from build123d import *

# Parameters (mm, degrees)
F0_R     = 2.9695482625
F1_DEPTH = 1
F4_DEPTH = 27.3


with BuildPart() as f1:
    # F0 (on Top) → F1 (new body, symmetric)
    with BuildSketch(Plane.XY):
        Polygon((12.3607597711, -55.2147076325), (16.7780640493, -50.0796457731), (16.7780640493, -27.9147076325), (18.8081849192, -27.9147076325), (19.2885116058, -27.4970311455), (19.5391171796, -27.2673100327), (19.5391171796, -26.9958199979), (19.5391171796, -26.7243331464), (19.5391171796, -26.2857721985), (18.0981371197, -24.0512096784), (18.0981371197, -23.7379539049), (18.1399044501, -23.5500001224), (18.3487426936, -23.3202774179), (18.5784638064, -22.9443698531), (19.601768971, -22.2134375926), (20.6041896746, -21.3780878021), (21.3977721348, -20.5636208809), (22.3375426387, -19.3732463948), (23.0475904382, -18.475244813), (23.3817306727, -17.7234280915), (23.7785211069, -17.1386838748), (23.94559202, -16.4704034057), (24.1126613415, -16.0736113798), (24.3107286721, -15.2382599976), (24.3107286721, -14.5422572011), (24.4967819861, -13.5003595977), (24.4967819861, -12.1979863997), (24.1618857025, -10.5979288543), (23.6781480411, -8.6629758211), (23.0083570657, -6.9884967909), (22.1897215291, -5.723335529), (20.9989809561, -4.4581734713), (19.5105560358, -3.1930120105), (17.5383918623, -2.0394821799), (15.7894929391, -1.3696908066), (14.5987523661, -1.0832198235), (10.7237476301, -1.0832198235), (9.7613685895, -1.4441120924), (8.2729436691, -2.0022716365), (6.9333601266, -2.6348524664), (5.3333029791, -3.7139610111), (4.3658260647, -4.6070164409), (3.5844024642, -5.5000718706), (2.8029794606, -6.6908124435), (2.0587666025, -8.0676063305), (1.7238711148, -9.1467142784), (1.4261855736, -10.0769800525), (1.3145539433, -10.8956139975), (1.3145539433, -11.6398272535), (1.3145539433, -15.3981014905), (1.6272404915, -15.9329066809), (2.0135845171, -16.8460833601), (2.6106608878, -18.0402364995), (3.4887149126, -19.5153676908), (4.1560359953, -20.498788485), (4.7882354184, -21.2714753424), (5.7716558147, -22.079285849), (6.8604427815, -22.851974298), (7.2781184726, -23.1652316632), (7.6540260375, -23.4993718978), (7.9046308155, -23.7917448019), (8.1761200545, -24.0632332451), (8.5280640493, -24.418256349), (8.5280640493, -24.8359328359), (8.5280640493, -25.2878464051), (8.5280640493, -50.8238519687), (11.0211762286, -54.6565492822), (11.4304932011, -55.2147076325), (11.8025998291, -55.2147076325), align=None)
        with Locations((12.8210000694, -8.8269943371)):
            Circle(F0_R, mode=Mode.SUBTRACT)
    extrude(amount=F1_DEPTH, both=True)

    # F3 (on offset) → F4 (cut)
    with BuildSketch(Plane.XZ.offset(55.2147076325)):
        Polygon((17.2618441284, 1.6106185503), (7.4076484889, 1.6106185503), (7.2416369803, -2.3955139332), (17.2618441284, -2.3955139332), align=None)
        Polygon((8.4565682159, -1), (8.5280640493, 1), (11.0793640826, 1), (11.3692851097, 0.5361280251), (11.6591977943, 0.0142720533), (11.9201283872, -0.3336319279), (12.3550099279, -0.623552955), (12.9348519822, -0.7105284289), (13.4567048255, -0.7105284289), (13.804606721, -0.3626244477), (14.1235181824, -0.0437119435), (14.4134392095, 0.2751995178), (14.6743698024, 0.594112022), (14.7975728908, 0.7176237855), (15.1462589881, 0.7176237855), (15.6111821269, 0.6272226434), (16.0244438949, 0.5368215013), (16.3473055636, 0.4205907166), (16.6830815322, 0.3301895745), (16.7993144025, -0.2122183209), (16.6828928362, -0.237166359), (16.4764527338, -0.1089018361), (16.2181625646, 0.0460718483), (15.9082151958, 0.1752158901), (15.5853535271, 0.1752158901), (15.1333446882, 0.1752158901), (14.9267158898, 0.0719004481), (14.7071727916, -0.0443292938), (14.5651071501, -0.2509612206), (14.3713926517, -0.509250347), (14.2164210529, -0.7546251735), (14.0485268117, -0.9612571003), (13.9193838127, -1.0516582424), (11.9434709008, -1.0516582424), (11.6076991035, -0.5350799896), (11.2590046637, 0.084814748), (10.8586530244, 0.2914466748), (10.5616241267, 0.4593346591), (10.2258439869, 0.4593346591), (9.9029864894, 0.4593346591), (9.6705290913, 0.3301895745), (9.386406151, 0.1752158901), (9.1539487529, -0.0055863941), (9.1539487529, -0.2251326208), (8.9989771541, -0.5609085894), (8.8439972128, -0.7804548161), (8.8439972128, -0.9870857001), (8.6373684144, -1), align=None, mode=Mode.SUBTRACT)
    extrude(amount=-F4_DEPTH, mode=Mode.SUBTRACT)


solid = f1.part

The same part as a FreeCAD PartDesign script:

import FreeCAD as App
import Part
import Sketcher


def add_polygon(sketch, points):
    """Adds a closed chain of lines whose ends are joined by coincident constraints."""
    first, n = sketch.GeometryCount, len(points)
    for a, b in zip(points, points[1:] + points[:1]):
        sketch.addGeometry(Part.LineSegment(App.Vector(*a, 0), App.Vector(*b, 0)), False)
    for i in range(n):
        sketch.addConstraint(Sketcher.Constraint("Coincident", first + i, 2, first + (i + 1) % n, 1))

doc = App.newDocument("Part")
body = doc.addObject("PartDesign::Body", "Body")

sketch1 = doc.addObject("Sketcher::SketchObject", "Sketch")
body.addObject(sketch1)
sketch1.AttachmentSupport = (doc.XY_Plane, [""])
sketch1.MapMode = "FlatFace"
add_polygon(sketch1, [(12.36, -55.21), (16.78, -50.08), (16.78, -27.91), (18.81, -27.91), (19.29, -27.5), (19.54, -27.27), (19.54, -26.29), (18.1, -24.05), (18.1, -23.74), (18.14, -23.55), (18.35, -23.32), (18.58, -22.94), (19.6, -22.21), (20.6, -21.38), (21.4, -20.56), (22.34, -19.37), (23.05, -18.48), (23.38, -17.72), (23.78, -17.14), (23.95, -16.47), (24.11, -16.07), (24.31, -15.24), (24.31, -14.54), (24.5, -13.5), (24.5, -12.2), (24.16, -10.6), (23.68, -8.66), (23.01, -6.99), (22.19, -5.72), (21, -4.46), (19.51, -3.19), (17.54, -2.04), (15.79, -1.37), (14.6, -1.08), (10.72, -1.08), (9.76, -1.44), (8.27, -2), (6.93, -2.63), (5.33, -3.71), (4.37, -4.61), (3.58, -5.5), (2.8, -6.69), (2.06, -8.07), (1.72, -9.15), (1.43, -10.08), (1.31, -10.9), (1.31, -15.4), (1.63, -15.93), (2.01, -16.85), (2.61, -18.04), (3.49, -19.52), (4.16, -20.5), (4.79, -21.27), (5.77, -22.08), (6.86, -22.85), (7.28, -23.17), (7.65, -23.5), (7.9, -23.79), (8.18, -24.06), (8.53, -24.42), (8.53, -50.82), (11.02, -54.66), (11.43, -55.21)])
sketch1.addGeometry(Part.Circle(App.Vector(12.82, -8.83, 0), App.Vector(0, 0, 1), 2.97), False)
sketch1.addConstraint(Sketcher.Constraint("Vertical", 1))
sketch1.addConstraint(Sketcher.Constraint("Horizontal", 2))
sketch1.addConstraint(Sketcher.Constraint("Vertical", 5))
sketch1.addConstraint(Sketcher.Constraint("Vertical", 7))
sketch1.addConstraint(Sketcher.Constraint("Vertical", 21))
sketch1.addConstraint(Sketcher.Constraint("Vertical", 23))
sketch1.addConstraint(Sketcher.Constraint("Horizontal", 33))
sketch1.addConstraint(Sketcher.Constraint("Vertical", 45))
sketch1.addConstraint(Sketcher.Constraint("Vertical", 59))
sketch1.addConstraint(Sketcher.Constraint("Horizontal", 62))
sketch1.addConstraint(Sketcher.Constraint("Parallel", 34, 35))
sketch1.addConstraint(Sketcher.Constraint("Equal", 48, 53))
sketch1.addConstraint(Sketcher.Constraint("DistanceY", 8, 2, -1, 1, 23.55))
sketch1.addConstraint(Sketcher.Constraint("Diameter", 63, 5.939097))
sketch1.addConstraint(Sketcher.Constraint("DistanceX", -1, 1, 63, 3, 12.821))
sketch1.addConstraint(Sketcher.Constraint("DistanceX", 2, 1, 2, 2, 2.030121))
sketch1.addConstraint(Sketcher.Constraint("DistanceY", 1, 1, 1, 2, 22.164938))
sketch1.addConstraint(Sketcher.Constraint("DistanceY", 45, 2, -1, 1, 15.398101))
sketch1.addConstraint(Sketcher.Constraint("Distance", 6, 2.658889))
sketch1.addConstraint(Sketcher.Constraint("Distance", 8, 0.192539))
sketch1.addConstraint(Sketcher.Constraint("Distance", 9, 0.310461))
sketch1.addConstraint(Sketcher.Constraint("Distance", 12, 1.304859))
sketch1.addConstraint(Sketcher.Constraint("Distance", 13, 1.137159))
sketch1.addConstraint(Sketcher.Constraint("Distance", 17, 0.70666))
sketch1.addConstraint(Sketcher.Constraint("Distance", 19, 0.43053))
sketch1.addConstraint(Sketcher.Constraint("Distance", 20, 0.858512))
sketch1.addConstraint(Sketcher.Constraint("Distance", 22, 1.058379))
sketch1.addConstraint(Sketcher.Constraint("Distance", 24, 1.634729))
sketch1.addConstraint(Sketcher.Constraint("Distance", 26, 1.803469))
sketch1.addConstraint(Sketcher.Constraint("Distance", 29, 1.953469))
sketch1.addConstraint(Sketcher.Constraint("Distance", 31, 1.87277))
sketch1.addConstraint(Sketcher.Constraint("Distance", 34, 1.027821))
sketch1.addConstraint(Sketcher.Constraint("Distance", 35, 1.589639))
sketch1.addConstraint(Sketcher.Constraint("Distance", 40, 1.424249))
sketch1.addConstraint(Sketcher.Constraint("Distance", 41, 1.56506))
sketch1.addConstraint(Sketcher.Constraint("Distance", 42, 1.12988))
sketch1.addConstraint(Sketcher.Constraint("Distance", 44, 0.82621))
sketch1.addConstraint(Sketcher.Constraint("Distance", 47, 0.991541))
sketch1.addConstraint(Sketcher.Constraint("Distance", 49, 1.71668))
sketch1.addConstraint(Sketcher.Constraint("Distance", 50, 1.188459))
sketch1.addConstraint(Sketcher.Constraint("Distance", 51, 0.998359))
sketch1.addConstraint(Sketcher.Constraint("DistanceX", 33, 2, 33, 1, 3.875005))
sketch1.addConstraint(Sketcher.Constraint("DistanceX", 62, 1, 62, 2, 0.930267))
sketch1.addConstraint(Sketcher.Constraint("DistanceY", 5, 1, 5, 2, 0.981538))
sketch1.addConstraint(Sketcher.Constraint("DistanceY", 7, 1, 7, 2, 0.313256))
sketch1.addConstraint(Sketcher.Constraint("DistanceY", 21, 1, 21, 2, 0.696003))
sketch1.addConstraint(Sketcher.Constraint("DistanceY", 23, 1, 23, 2, 1.302373))
sketch1.addConstraint(Sketcher.Constraint("DistanceY", 45, 2, 45, 1, 4.502487))
sketch1.addConstraint(Sketcher.Constraint("DistanceY", 59, 2, 59, 1, 26.405596))
sketch1.addConstraint(Sketcher.Constraint("DistanceX", -1, 1, 3, 2, 19.288512))
sketch1.addConstraint(Sketcher.Constraint("DistanceY", 3, 2, -1, 1, 27.497031))
sketch1.addConstraint(Sketcher.Constraint("DistanceY", 4, 2, -1, 1, 27.26731))
sketch1.addConstraint(Sketcher.Constraint("DistanceY", 6, 2, -1, 1, 24.05121))
sketch1.addConstraint(Sketcher.Constraint("DistanceY", 10, 2, -1, 1, 22.94437))
sketch1.addConstraint(Sketcher.Constraint("DistanceX", -1, 1, 11, 2, 19.601769))
sketch1.addConstraint(Sketcher.Constraint("DistanceX", -1, 1, 12, 2, 20.60419))
sketch1.addConstraint(Sketcher.Constraint("DistanceY", 13, 2, -1, 1, 20.563621))
sketch1.addConstraint(Sketcher.Constraint("DistanceX", -1, 1, 15, 2, 23.04759))
sketch1.addConstraint(Sketcher.Constraint("DistanceX", -1, 1, 16, 2, 23.381731))
sketch1.addConstraint(Sketcher.Constraint("DistanceY", 16, 2, -1, 1, 17.723428))
sketch1.addConstraint(Sketcher.Constraint("DistanceX", -1, 1, 17, 2, 23.778521))
sketch1.addConstraint(Sketcher.Constraint("DistanceX", -1, 1, 19, 2, 24.112661))
sketch1.addConstraint(Sketcher.Constraint("DistanceY", 19, 2, -1, 1, 16.073611))
sketch1.addConstraint(Sketcher.Constraint("DistanceX", -1, 1, 20, 2, 24.310729))
sketch1.addConstraint(Sketcher.Constraint("DistanceX", -1, 1, 22, 2, 24.496782))
sketch1.addConstraint(Sketcher.Constraint("DistanceY", 24, 2, -1, 1, 10.597929))
sketch1.addConstraint(Sketcher.Constraint("DistanceX", -1, 1, 25, 2, 23.678148))
sketch1.addConstraint(Sketcher.Constraint("DistanceX", -1, 1, 27, 2, 22.189722))
sketch1.addConstraint(Sketcher.Constraint("DistanceX", -1, 1, 28, 2, 20.998981))
sketch1.addConstraint(Sketcher.Constraint("DistanceX", -1, 1, 30, 2, 17.538392))
sketch1.addConstraint(Sketcher.Constraint("DistanceY", 31, 2, -1, 1, 1.369691))
sketch1.addConstraint(Sketcher.Constraint("DistanceY", 32, 2, -1, 1, 1.08322))
sketch1.addConstraint(Sketcher.Constraint("DistanceX", -1, 1, 34, 2, 9.761369))
sketch1.addConstraint(Sketcher.Constraint("DistanceY", 35, 2, -1, 1, 2.002272))
sketch1.addConstraint(Sketcher.Constraint("DistanceX", -1, 1, 36, 2, 6.93336))
sketch1.addConstraint(Sketcher.Constraint("DistanceY", 37, 2, -1, 1, 3.713961))
sketch1.addConstraint(Sketcher.Constraint("DistanceY", 39, 2, -1, 1, 5.500072))
sketch1.addConstraint(Sketcher.Constraint("DistanceX", -1, 1, 40, 2, 2.802979))
sketch1.addConstraint(Sketcher.Constraint("DistanceX", -1, 1, 42, 2, 1.723871))
sketch1.addConstraint(Sketcher.Constraint("DistanceY", 43, 2, -1, 1, 10.07698))
sketch1.addConstraint(Sketcher.Constraint("DistanceX", -1, 1, 46, 2, 1.62724))
sketch1.addConstraint(Sketcher.Constraint("DistanceX", -1, 1, 48, 2, 2.610661))
sketch1.addConstraint(Sketcher.Constraint("DistanceY", 50, 2, -1, 1, 20.498788))
sketch1.addConstraint(Sketcher.Constraint("DistanceX", -1, 1, 54, 2, 7.278118))
sketch1.addConstraint(Sketcher.Constraint("DistanceY", 54, 2, -1, 1, 23.165232))
sketch1.addConstraint(Sketcher.Constraint("DistanceY", 55, 2, -1, 1, 23.499372))
sketch1.addConstraint(Sketcher.Constraint("DistanceX", -1, 1, 56, 2, 7.904631))
sketch1.addConstraint(Sketcher.Constraint("DistanceX", -1, 1, 57, 2, 8.17612))
sketch1.addConstraint(Sketcher.Constraint("DistanceY", 59, 2, -1, 1, 50.823852))
sketch1.addConstraint(Sketcher.Constraint("DistanceY", 60, 2, -1, 1, 54.656549))
sketch1.addConstraint(Sketcher.Constraint("DistanceX", -1, 1, 62, 2, 12.36076))
sketch1.addConstraint(Sketcher.Constraint("Distance", 0, 6.773584))
sketch1.addConstraint(Sketcher.Constraint("Distance", 3, 0.636528))
sketch1.addConstraint(Sketcher.Constraint("Distance", 4, 0.339963))
sketch1.addConstraint(Sketcher.Constraint("Distance", 10, 0.440543))
sketch1.addConstraint(Sketcher.Constraint("Distance", 11, 1.257543))
sketch1.addConstraint(Sketcher.Constraint("Distance", 14, 1.516628))
sketch1.addConstraint(Sketcher.Constraint("Distance", 15, 1.144803))
sketch1.addConstraint(Sketcher.Constraint("Distance", 16, 0.822726))
sketch1.addConstraint(Sketcher.Constraint("Distance", 18, 0.688848))
sketch1.addConstraint(Sketcher.Constraint("Distance", 25, 1.994504))
sketch1.addConstraint(Sketcher.Constraint("Distance", 27, 1.506916))
sketch1.addConstraint(Sketcher.Constraint("Distance", 28, 1.737383))
sketch1.addConstraint(Sketcher.Constraint("Distance", 30, 2.284746))
sketch1.addConstraint(Sketcher.Constraint("Distance", 32, 1.224716))
sketch1.addConstraint(Sketcher.Constraint("Distance", 36, 1.481433))
sketch1.addConstraint(Sketcher.Constraint("Distance", 37, 1.929937))
sketch1.addConstraint(Sketcher.Constraint("Distance", 38, 1.316647))
sketch1.addConstraint(Sketcher.Constraint("Distance", 39, 1.186664))
sketch1.addConstraint(Sketcher.Constraint("Distance", 43, 0.976735))
sketch1.addConstraint(Sketcher.Constraint("Distance", 46, 0.619507))
sketch1.addConstraint(Sketcher.Constraint("Distance", 48, 1.335104))
sketch1.addConstraint(Sketcher.Constraint("Distance", 52, 1.272664))
sketch1.addConstraint(Sketcher.Constraint("Distance", 54, 0.522095))
sketch1.addConstraint(Sketcher.Constraint("Distance", 55, 0.502948))
sketch1.addConstraint(Sketcher.Constraint("Distance", 56, 0.385077))
sketch1.addConstraint(Sketcher.Constraint("Distance", 57, 0.383943))
sketch1.addConstraint(Sketcher.Constraint("Distance", 58, 0.499906))
sketch1.addConstraint(Sketcher.Constraint("Distance", 60, 4.572218))
sketch1.addConstraint(Sketcher.Constraint("Distance", 61, 0.692157))
sketch1.addConstraint(Sketcher.Constraint("DistanceY", 63, 3, -1, 1, 8.826994))
sketch1.addConstraint(Sketcher.Constraint("DistanceX", -1, 1, 14, 2, 22.337543))
sketch1.addConstraint(Sketcher.Constraint("DistanceX", -1, 1, 26, 2, 23.008357))
sketch1.addConstraint(Sketcher.Constraint("DistanceX", -1, 1, 38, 2, 4.365826))
sketch1.addConstraint(Sketcher.Constraint("DistanceX", -1, 1, 41, 2, 2.058767))
sketch1.addConstraint(Sketcher.Constraint("DistanceX", -1, 1, 47, 2, 2.013585))
sketch1.addConstraint(Sketcher.Constraint("DistanceX", -1, 1, 49, 2, 3.488715))
sketch1.addConstraint(Sketcher.Constraint("DistanceX", -1, 1, 51, 2, 4.788235))
sketch1.addConstraint(Sketcher.Constraint("DistanceX", -1, 1, 52, 2, 5.771656))
pad1 = doc.addObject("PartDesign::Pad", "Pad")
body.addObject(pad1)
pad1.Profile = sketch1
pad1.Length = 2
pad1.Midplane = True

sketch2 = doc.addObject("Sketcher::SketchObject", "Sketch001")
body.addObject(sketch2)
sketch2.AttachmentSupport = (doc.XZ_Plane, [""])
sketch2.MapMode = "FlatFace"
sketch2.AttachmentOffset = App.Placement(App.Vector(0, 0, 55.214708), App.Rotation())
add_polygon(sketch2, [(17.26, 1.61), (7.41, 1.61), (7.24, -2.4), (17.26, -2.4)])
add_polygon(sketch2, [(8.64, -1), (8.46, -1), (8.53, 1), (11.08, 1), (11.37, 0.54), (11.66, 0.01), (11.92, -0.33), (12.36, -0.62), (12.93, -0.71), (13.46, -0.71), (13.8, -0.36), (14.12, -0.04), (14.41, 0.28), (14.67, 0.59), (14.8, 0.72), (15.15, 0.72), (15.61, 0.63), (16.02, 0.54), (16.35, 0.42), (16.68, 0.33), (16.8, -0.21), (16.68, -0.24), (16.48, -0.11), (16.22, 0.05), (15.91, 0.18), (15.13, 0.18), (14.93, 0.07), (14.71, -0.04), (14.57, -0.25), (14.37, -0.51), (14.22, -0.75), (14.05, -0.96), (13.92, -1.05), (11.94, -1.05), (11.61, -0.54), (11.26, 0.08), (10.86, 0.29), (10.56, 0.46), (9.9, 0.46), (9.67, 0.33), (9.39, 0.18), (9.15, -0.01), (9.15, -0.23), (9, -0.56), (8.84, -0.78), (8.84, -0.99)])
sketch2.addConstraint(Sketcher.Constraint("Horizontal", 0))
sketch2.addConstraint(Sketcher.Constraint("Horizontal", 2))
sketch2.addConstraint(Sketcher.Constraint("Vertical", 3))
sketch2.addConstraint(Sketcher.Constraint("Horizontal", 4))
sketch2.addConstraint(Sketcher.Constraint("Horizontal", 6))
sketch2.addConstraint(Sketcher.Constraint("Horizontal", 12))
sketch2.addConstraint(Sketcher.Constraint("Horizontal", 18))
sketch2.addConstraint(Sketcher.Constraint("Horizontal", 28))
sketch2.addConstraint(Sketcher.Constraint("Horizontal", 36))
sketch2.addConstraint(Sketcher.Constraint("Horizontal", 41))
sketch2.addConstraint(Sketcher.Constraint("Vertical", 45))
sketch2.addConstraint(Sketcher.Constraint("Vertical", 48))
sketch2.addConstraint(Sketcher.Constraint("Parallel", 13, 14))
sketch2.addConstraint(Sketcher.Constraint("Perpendicular", 23, 24))
sketch2.addConstraint(Sketcher.Constraint("Horizontal", 22, 2, 42, 2))
sketch2.addConstraint(Sketcher.Constraint("Horizontal", 28, 2, 43, 2))
sketch2.addConstraint(Sketcher.Constraint("DistanceY", 4, 2, -1, 1, 1.0))
sketch2.addConstraint(Sketcher.Constraint("DistanceY", -1, 1, 5, 2, 1.0))
sketch2.addConstraint(Sketcher.Constraint("DistanceX", 4, 2, 4, 1, 0.1808))
sketch2.addConstraint(Sketcher.Constraint("DistanceX", 6, 1, 6, 2, 2.5513))
sketch2.addConstraint(Sketcher.Constraint("DistanceY", 33, 2, 13, 2, 0.392001))
sketch2.addConstraint(Sketcher.Constraint("DistanceX", 28, 2, 28, 1, 0.774871))
sketch2.addConstraint(Sketcher.Constraint("DistanceY", 48, 2, 48, 1, 0.206631))
sketch2.addConstraint(Sketcher.Constraint("DistanceY", -1, 1, 15, 2, 0.2752))
sketch2.addConstraint(Sketcher.Constraint("DistanceY", 25, 2, -1, 1, 0.108902))
sketch2.addConstraint(Sketcher.Constraint("DistanceY", -1, 1, 29, 2, 0.0719))
sketch2.addConstraint(Sketcher.Constraint("DistanceX", -1, 1, 37, 2, 11.607699))
sketch2.addConstraint(Sketcher.Constraint("DistanceY", 11, 2, 8, 2, 0.7248))
sketch2.addConstraint(Sketcher.Constraint("DistanceX", 12, 2, 13, 2, 0.347902))
sketch2.addConstraint(Sketcher.Constraint("DistanceY", 19, 2, 18, 2, 0.090401))
sketch2.addConstraint(Sketcher.Constraint("DistanceY", 20, 2, 19, 2, 0.090401))
sketch2.addConstraint(Sketcher.Constraint("DistanceY", 22, 2, 21, 2, 0.090401))
sketch2.addConstraint(Sketcher.Constraint("DistanceX", 19, 2, 22, 2, 1.071899))
sketch2.addConstraint(Sketcher.Constraint("DistanceY", 35, 2, 34, 2, 0.090401))
sketch2.addConstraint(Sketcher.Constraint("DistanceX", 37, 2, 8, 2, 0.051499))
sketch2.addConstraint(Sketcher.Constraint("DistanceX", 41, 2, 7, 2, 1.466299))
sketch2.addConstraint(Sketcher.Constraint("DistanceY", 46, 2, 42, 2, 0.891098))
sketch2.addConstraint(Sketcher.Constraint("DistanceY", 48, 2, 44, 2, 0.981499))
sketch2.addConstraint(Sketcher.Constraint("Distance", 1, 4.009571))
sketch2.addConstraint(Sketcher.Constraint("Distance", 7, 0.54702))
sketch2.addConstraint(Sketcher.Constraint("Distance", 8, 0.596978))
sketch2.addConstraint(Sketcher.Constraint("Distance", 9, 0.434882))
sketch2.addConstraint(Sketcher.Constraint("Distance", 11, 0.586329))
sketch2.addConstraint(Sketcher.Constraint("Distance", 13, 0.492009))
sketch2.addConstraint(Sketcher.Constraint("Distance", 14, 0.45101))
sketch2.addConstraint(Sketcher.Constraint("Distance", 19, 0.473631))
sketch2.addConstraint(Sketcher.Constraint("Distance", 23, 0.554722))
sketch2.addConstraint(Sketcher.Constraint("Distance", 25, 0.243042))
sketch2.addConstraint(Sketcher.Constraint("Distance", 29, 0.231018))
sketch2.addConstraint(Sketcher.Constraint("Distance", 32, 0.32286))
sketch2.addConstraint(Sketcher.Constraint("Distance", 35, 0.15764))
sketch2.addConstraint(Sketcher.Constraint("Distance", 39, 0.450531))
sketch2.addConstraint(Sketcher.Constraint("Distance", 43, 0.32364))
sketch2.addConstraint(Sketcher.Constraint("Distance", 49, 0.207032))
sketch2.addConstraint(Sketcher.Constraint("DistanceX", 0, 2, 0, 1, 9.854196))
sketch2.addConstraint(Sketcher.Constraint("DistanceX", 2, 1, 2, 2, 10.020207))
sketch2.addConstraint(Sketcher.Constraint("DistanceX", 12, 1, 12, 2, 0.521853))
sketch2.addConstraint(Sketcher.Constraint("DistanceX", 18, 1, 18, 2, 0.348686))
sketch2.addConstraint(Sketcher.Constraint("DistanceX", 36, 2, 36, 1, 1.975913))
sketch2.addConstraint(Sketcher.Constraint("DistanceX", 41, 2, 41, 1, 0.658638))
sketch2.addConstraint(Sketcher.Constraint("DistanceY", 45, 2, 45, 1, 0.219546))
sketch2.addConstraint(Sketcher.Constraint("DistanceX", -1, 1, 0, 2, 7.407648))
sketch2.addConstraint(Sketcher.Constraint("DistanceY", -1, 1, 0, 2, 1.610619))
sketch2.addConstraint(Sketcher.Constraint("DistanceX", -1, 1, 4, 2, 8.456568))
sketch2.addConstraint(Sketcher.Constraint("DistanceY", -1, 1, 7, 2, 0.536128))
sketch2.addConstraint(Sketcher.Constraint("DistanceX", -1, 1, 9, 2, 11.920128))
sketch2.addConstraint(Sketcher.Constraint("DistanceY", 9, 2, -1, 1, 0.333632))
sketch2.addConstraint(Sketcher.Constraint("DistanceX", -1, 1, 10, 2, 12.35501))
sketch2.addConstraint(Sketcher.Constraint("DistanceX", -1, 1, 11, 2, 12.934852))
sketch2.addConstraint(Sketcher.Constraint("DistanceX", -1, 1, 15, 2, 14.413439))
sketch2.addConstraint(Sketcher.Constraint("DistanceX", -1, 1, 16, 2, 14.67437))
sketch2.addConstraint(Sketcher.Constraint("DistanceX", -1, 1, 18, 2, 15.146259))
sketch2.addConstraint(Sketcher.Constraint("DistanceY", -1, 1, 20, 2, 0.536822))
sketch2.addConstraint(Sketcher.Constraint("DistanceY", -1, 1, 21, 2, 0.420591))
sketch2.addConstraint(Sketcher.Constraint("DistanceY", 23, 2, -1, 1, 0.212218))
sketch2.addConstraint(Sketcher.Constraint("DistanceY", -1, 1, 26, 2, 0.046072))
sketch2.addConstraint(Sketcher.Constraint("DistanceY", 30, 2, -1, 1, 0.044329))
sketch2.addConstraint(Sketcher.Constraint("DistanceY", 31, 2, -1, 1, 0.250961))
sketch2.addConstraint(Sketcher.Constraint("DistanceY", 32, 2, -1, 1, 0.50925))
sketch2.addConstraint(Sketcher.Constraint("DistanceX", -1, 1, 33, 2, 14.216421))
sketch2.addConstraint(Sketcher.Constraint("DistanceY", 35, 2, -1, 1, 1.051658))
sketch2.addConstraint(Sketcher.Constraint("DistanceX", -1, 1, 36, 2, 11.943471))
sketch2.addConstraint(Sketcher.Constraint("DistanceY", 37, 2, -1, 1, 0.53508))
sketch2.addConstraint(Sketcher.Constraint("DistanceX", -1, 1, 42, 2, 9.670529))
sketch2.addConstraint(Sketcher.Constraint("DistanceX", -1, 1, 44, 2, 9.153949))
sketch2.addConstraint(Sketcher.Constraint("DistanceY", 12, 2, 16, 2, 1.30464))
sketch2.addConstraint(Sketcher.Constraint("DistanceX", 19, 2, 20, 2, 0.413262))
sketch2.addConstraint(Sketcher.Constraint("DistanceX", 20, 2, 21, 2, 0.322862))
sketch2.addConstraint(Sketcher.Constraint("DistanceX", 24, 2, 23, 2, 0.116422))
sketch2.addConstraint(Sketcher.Constraint("DistanceX", 26, 2, 25, 2, 0.25829))
sketch2.addConstraint(Sketcher.Constraint("DistanceX", 27, 2, 20, 2, 0.116229))
sketch2.addConstraint(Sketcher.Constraint("DistanceX", 29, 2, 28, 2, 0.206629))
sketch2.addConstraint(Sketcher.Constraint("DistanceX", 30, 2, 28, 2, 0.426172))
sketch2.addConstraint(Sketcher.Constraint("DistanceX", 31, 2, 29, 2, 0.361609))
sketch2.addConstraint(Sketcher.Constraint("DistanceX", 38, 2, 7, 2, 0.11028))
sketch2.addConstraint(Sketcher.Constraint("DistanceX", 39, 2, 38, 2, 0.400352))
sketch2.addConstraint(Sketcher.Constraint("DistanceY", 39, 2, 7, 2, 0.244681))
sketch2.addConstraint(Sketcher.Constraint("DistanceY", 38, 2, 40, 2, 0.37452))
sketch2.addConstraint(Sketcher.Constraint("DistanceY", 44, 2, 41, 2, 0.464921))
sketch2.addConstraint(Sketcher.Constraint("DistanceX", 46, 2, 45, 2, 0.154972))
pocket1 = doc.addObject("PartDesign::Pocket", "Pocket")
body.addObject(pocket1)
pocket1.Profile = sketch2
pocket1.Length = 27.3

doc.recompute()
